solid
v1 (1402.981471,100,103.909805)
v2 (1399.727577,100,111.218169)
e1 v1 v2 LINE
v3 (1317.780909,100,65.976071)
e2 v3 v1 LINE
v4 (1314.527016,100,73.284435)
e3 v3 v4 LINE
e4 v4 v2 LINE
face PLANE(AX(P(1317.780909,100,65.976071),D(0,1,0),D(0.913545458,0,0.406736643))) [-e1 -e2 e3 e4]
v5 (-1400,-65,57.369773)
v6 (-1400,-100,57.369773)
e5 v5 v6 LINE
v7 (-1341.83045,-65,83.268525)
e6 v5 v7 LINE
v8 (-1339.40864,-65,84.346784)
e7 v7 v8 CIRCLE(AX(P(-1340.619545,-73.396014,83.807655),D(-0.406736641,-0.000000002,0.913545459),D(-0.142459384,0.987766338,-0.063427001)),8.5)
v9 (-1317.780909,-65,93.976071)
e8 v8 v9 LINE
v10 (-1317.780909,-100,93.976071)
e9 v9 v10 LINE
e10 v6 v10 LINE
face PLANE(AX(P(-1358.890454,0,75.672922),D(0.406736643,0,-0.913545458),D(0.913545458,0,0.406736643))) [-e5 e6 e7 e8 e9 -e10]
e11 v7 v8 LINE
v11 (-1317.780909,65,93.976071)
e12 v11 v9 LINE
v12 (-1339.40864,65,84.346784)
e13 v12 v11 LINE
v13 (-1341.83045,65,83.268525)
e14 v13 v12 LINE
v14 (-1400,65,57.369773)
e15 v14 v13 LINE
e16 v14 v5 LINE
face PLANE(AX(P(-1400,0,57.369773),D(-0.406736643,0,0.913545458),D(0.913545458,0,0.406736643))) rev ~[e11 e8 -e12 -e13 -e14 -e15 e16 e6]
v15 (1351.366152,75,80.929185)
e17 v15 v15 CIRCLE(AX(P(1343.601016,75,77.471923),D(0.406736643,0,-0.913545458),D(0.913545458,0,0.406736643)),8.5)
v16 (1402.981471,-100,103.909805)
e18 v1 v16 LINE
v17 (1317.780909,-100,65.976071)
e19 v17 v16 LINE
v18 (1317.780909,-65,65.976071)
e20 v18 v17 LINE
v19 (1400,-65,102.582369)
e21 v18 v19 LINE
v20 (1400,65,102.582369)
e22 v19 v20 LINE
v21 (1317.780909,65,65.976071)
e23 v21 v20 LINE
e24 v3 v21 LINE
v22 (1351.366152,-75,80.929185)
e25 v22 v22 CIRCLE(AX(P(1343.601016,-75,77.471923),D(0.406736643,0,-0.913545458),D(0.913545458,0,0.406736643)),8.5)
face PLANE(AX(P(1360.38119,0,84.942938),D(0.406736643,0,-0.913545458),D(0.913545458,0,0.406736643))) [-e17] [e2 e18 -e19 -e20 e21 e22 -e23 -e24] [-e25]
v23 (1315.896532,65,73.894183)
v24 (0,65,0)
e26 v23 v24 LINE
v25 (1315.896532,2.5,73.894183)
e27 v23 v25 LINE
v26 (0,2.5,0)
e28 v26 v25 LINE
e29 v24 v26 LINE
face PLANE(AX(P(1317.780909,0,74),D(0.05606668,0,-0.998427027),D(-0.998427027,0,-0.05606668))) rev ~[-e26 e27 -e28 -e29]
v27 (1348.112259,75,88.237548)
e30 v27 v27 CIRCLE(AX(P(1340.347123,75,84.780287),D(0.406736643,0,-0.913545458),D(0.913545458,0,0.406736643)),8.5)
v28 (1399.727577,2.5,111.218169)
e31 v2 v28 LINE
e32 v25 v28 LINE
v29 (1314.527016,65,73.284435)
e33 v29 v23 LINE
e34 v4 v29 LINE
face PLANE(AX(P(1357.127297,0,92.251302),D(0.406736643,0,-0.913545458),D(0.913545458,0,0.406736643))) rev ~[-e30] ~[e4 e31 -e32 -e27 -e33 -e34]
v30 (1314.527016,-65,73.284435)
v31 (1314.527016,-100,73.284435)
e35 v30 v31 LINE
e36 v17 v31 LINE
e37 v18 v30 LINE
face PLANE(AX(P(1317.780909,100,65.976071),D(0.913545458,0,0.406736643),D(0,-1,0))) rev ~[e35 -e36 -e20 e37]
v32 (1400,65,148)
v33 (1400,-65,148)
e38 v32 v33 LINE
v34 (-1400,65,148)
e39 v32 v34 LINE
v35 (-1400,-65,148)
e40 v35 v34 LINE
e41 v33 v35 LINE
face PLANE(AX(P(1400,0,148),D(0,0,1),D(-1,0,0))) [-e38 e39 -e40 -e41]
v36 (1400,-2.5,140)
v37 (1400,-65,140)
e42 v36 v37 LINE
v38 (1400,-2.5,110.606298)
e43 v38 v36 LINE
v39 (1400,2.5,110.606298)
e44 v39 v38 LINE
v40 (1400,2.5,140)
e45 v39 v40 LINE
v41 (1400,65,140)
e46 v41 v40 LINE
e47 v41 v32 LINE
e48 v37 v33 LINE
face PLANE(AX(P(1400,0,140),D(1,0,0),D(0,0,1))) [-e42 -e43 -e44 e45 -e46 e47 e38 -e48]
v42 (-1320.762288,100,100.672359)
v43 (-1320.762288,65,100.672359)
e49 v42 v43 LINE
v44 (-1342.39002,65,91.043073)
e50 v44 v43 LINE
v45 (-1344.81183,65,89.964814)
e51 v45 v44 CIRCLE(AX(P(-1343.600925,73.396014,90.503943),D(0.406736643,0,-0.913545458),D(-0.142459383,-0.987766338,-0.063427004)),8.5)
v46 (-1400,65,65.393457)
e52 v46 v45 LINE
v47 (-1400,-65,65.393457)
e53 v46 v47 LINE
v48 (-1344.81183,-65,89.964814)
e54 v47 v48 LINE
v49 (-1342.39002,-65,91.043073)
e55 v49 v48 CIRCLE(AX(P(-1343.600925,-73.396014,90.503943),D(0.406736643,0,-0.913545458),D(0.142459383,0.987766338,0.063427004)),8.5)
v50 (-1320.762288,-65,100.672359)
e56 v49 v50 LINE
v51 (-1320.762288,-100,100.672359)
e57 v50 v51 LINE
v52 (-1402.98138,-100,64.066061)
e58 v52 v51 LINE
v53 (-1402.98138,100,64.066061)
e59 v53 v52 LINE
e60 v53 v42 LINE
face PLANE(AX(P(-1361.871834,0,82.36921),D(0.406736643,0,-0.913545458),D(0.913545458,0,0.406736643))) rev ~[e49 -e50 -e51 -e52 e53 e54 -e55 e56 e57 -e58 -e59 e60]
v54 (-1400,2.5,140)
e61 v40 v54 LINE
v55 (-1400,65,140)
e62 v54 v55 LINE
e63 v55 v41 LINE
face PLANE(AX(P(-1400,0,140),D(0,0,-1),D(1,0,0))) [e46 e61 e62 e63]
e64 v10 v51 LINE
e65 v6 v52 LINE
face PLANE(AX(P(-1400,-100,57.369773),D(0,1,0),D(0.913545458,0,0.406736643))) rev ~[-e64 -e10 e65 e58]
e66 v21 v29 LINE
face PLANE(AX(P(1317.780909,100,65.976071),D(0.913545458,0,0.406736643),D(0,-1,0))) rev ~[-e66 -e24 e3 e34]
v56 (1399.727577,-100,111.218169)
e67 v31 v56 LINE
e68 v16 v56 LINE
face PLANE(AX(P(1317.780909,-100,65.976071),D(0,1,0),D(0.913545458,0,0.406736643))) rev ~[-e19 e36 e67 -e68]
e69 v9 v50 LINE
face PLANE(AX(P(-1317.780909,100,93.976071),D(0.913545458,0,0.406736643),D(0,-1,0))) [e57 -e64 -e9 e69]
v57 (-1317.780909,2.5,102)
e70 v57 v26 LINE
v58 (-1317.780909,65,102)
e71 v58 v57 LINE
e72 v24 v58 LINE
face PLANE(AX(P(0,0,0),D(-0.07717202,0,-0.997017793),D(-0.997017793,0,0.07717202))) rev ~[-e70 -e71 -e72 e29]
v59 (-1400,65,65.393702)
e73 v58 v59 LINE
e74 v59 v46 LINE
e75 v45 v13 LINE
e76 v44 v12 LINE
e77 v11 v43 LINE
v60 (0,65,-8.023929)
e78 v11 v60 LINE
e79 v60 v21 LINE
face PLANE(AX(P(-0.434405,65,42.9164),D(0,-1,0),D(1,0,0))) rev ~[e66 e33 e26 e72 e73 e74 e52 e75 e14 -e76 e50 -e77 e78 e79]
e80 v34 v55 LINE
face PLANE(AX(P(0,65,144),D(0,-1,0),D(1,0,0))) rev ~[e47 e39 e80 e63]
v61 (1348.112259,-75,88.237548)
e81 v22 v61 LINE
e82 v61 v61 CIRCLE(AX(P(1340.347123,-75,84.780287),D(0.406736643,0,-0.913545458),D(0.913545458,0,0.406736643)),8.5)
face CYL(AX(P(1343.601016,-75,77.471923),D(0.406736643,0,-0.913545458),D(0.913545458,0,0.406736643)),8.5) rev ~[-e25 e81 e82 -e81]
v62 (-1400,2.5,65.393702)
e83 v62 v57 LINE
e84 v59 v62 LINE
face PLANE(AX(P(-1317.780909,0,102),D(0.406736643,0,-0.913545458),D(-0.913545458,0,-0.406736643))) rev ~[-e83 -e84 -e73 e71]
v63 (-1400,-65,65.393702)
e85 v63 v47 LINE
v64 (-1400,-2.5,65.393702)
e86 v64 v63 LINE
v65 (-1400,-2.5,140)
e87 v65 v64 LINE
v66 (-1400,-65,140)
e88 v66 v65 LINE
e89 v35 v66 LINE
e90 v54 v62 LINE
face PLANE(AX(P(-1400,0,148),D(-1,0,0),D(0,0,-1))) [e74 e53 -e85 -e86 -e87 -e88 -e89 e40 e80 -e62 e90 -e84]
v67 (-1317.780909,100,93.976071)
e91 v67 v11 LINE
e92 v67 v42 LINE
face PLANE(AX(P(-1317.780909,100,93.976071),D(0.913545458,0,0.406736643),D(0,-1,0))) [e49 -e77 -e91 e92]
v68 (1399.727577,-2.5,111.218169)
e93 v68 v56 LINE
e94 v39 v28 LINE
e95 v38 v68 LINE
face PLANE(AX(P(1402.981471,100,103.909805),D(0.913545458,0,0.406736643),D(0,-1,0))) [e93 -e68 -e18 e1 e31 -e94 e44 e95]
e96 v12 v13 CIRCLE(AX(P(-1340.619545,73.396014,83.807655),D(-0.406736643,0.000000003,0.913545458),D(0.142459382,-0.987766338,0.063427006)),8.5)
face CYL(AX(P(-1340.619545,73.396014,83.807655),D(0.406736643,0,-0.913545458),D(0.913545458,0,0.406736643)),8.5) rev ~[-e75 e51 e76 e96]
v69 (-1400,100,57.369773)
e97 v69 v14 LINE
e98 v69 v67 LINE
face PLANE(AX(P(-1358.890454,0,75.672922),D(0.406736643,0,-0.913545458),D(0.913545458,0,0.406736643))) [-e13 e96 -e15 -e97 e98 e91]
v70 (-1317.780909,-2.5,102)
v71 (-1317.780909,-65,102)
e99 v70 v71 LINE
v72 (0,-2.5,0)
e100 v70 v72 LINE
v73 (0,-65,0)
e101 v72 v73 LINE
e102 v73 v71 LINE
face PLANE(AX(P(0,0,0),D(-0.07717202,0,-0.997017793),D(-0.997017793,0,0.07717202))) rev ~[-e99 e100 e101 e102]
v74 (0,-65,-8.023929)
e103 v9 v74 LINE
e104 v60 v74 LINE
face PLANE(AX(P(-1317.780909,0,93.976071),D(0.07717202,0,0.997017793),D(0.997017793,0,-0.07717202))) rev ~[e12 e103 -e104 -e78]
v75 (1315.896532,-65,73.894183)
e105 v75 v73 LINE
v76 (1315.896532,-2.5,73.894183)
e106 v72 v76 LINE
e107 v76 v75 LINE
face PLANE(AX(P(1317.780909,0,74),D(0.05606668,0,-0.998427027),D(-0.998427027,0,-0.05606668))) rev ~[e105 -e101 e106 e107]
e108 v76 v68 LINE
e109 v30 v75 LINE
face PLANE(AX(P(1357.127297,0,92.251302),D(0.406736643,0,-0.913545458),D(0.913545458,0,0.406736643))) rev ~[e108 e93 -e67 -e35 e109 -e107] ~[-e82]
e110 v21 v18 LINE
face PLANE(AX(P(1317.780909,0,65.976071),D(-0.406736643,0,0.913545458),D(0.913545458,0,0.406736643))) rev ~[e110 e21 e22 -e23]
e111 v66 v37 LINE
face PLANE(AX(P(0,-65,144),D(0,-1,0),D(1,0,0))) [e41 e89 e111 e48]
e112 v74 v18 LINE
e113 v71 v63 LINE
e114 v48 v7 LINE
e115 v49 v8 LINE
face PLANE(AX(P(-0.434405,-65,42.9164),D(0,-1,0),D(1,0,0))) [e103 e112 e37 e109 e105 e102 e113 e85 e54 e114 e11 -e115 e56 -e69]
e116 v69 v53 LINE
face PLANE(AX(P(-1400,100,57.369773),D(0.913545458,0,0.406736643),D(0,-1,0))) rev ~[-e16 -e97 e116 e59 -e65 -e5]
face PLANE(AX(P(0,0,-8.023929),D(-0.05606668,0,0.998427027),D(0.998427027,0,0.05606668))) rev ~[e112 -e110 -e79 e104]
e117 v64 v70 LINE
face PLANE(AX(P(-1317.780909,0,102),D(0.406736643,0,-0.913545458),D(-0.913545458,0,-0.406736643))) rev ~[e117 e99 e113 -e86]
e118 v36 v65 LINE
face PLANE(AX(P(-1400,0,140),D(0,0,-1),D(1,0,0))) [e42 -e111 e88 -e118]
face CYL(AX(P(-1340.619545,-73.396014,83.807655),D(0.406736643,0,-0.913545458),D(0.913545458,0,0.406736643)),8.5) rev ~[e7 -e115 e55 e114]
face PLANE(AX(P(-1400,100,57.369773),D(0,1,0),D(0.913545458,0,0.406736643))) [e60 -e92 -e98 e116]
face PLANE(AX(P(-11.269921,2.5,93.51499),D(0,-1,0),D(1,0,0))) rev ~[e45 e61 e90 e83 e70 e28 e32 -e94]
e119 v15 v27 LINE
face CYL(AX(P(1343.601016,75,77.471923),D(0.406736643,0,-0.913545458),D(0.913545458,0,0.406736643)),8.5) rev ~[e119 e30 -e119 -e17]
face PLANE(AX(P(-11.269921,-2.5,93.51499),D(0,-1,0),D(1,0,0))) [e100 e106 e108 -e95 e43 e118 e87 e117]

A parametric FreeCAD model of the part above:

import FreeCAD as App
import Part
import Sketcher

V = App.Vector
Q = App.Units.Quantity

doc = App.newDocument("Part")
body = doc.addObject("PartDesign::Body", "Body")

sketch1 = doc.addObject("Sketcher::SketchObject", "Sketch")
body.addObject(sketch1)
sketch1.AttachmentSupport = (doc.XZ_Plane, [""])
sketch1.MapMode = "FlatFace"
sketch1.addGeometry(Part.LineSegment(V(1400, 140, 0), V(-1400, 140, 0)), False)
sketch1.addGeometry(Part.LineSegment(V(-1400, 140, 0), V(-1400, 65, 0)), False)
sketch1.addGeometry(Part.LineSegment(V(-1400, 65, 0), V(-1318, 102, 0)), False)
sketch1.addGeometry(Part.LineSegment(V(-1318, 102, 0), V(0, 0, 0)), False)
sketch1.addGeometry(Part.LineSegment(V(0, 0, 0), V(1318, 74, 0)), False)
sketch1.addGeometry(Part.LineSegment(V(1318, 74, 0), V(1400, 111, 0)), False)
sketch1.addGeometry(Part.LineSegment(V(1400, 111, 0), V(1400, 140, 0)), False)
sketch1.addConstraint(Sketcher.Constraint("Coincident", 0, 2, 1, 1))
sketch1.addConstraint(Sketcher.Constraint("Coincident", 1, 2, 2, 1))
sketch1.addConstraint(Sketcher.Constraint("Coincident", 2, 2, 3, 1))
sketch1.addConstraint(Sketcher.Constraint("Coincident", 3, 2, 4, 1))
sketch1.addConstraint(Sketcher.Constraint("Coincident", 4, 2, 5, 1))
sketch1.addConstraint(Sketcher.Constraint("Coincident", 5, 2, 6, 1))
sketch1.addConstraint(Sketcher.Constraint("Coincident", 6, 2, 0, 1))
sketch1.addConstraint(Sketcher.Constraint("Horizontal", 0))
sketch1.addConstraint(Sketcher.Constraint("Vertical", 1))
sketch1.addConstraint(Sketcher.Constraint("Vertical", 6))
sketch1.addConstraint(Sketcher.Constraint("Coincident", 3, 2, -1, 1))
sketch1.addConstraint(Sketcher.Constraint("Parallel", 2, 5))
sketch1.addConstraint(Sketcher.Constraint("Equal", 2, 5))
sketch1.addConstraint(Sketcher.Constraint("DistanceX", 0, 2, 0, 1, 2800.0))
sketch1.addConstraint(Sketcher.Constraint("Angle", 2, Q("24 deg")))
sketch1.addConstraint(Sketcher.Constraint("Distance", 2, 90.0))
sketch1.addConstraint(Sketcher.Constraint("DistanceX", 0, 2, -1, 1, 1400.0))
sketch1.addConstraint(Sketcher.Constraint("DistanceY", -1, 1, 0, 2, 140.0))
sketch1.addConstraint(Sketcher.Constraint("DistanceY", -1, 1, 2, 2, 102.0))
sketch1.addConstraint(Sketcher.Constraint("DistanceY", -1, 1, 4, 2, 74.0))
pad1 = doc.addObject("PartDesign::Pad", "Pad")
body.addObject(pad1)
pad1.Profile = sketch1
pad1.Length = 5
pad1.Midplane = True

sketch2 = doc.addObject("Sketcher::SketchObject", "Sketch001")
body.addObject(sketch2)
sketch2.AttachmentSupport = (doc.XZ_Plane, [""])
sketch2.MapMode = "FlatFace"
sketch2.addGeometry(Part.LineSegment(V(1318, 74, 0), V(0, 0, 0)), False)
sketch2.addGeometry(Part.LineSegment(V(0, 0, 0), V(-1318, 102, 0)), False)
sketch2.addGeometry(Part.LineSegment(V(-1318, 102, 0), V(-1400, 65, 0)), False)
sketch2.addGeometry(Part.LineSegment(V(-1400, 65, 0), V(-1400, 57, 0)), False)
sketch2.addGeometry(Part.LineSegment(V(-1400, 57, 0), V(-1318, 94, 0)), False)
sketch2.addGeometry(Part.LineSegment(V(-1318, 94, 0), V(0, -8, 0)), False)
sketch2.addGeometry(Part.LineSegment(V(0, -8, 0), V(1318, 66, 0)), False)
sketch2.addGeometry(Part.LineSegment(V(1318, 66, 0), V(1400, 103, 0)), False)
sketch2.addGeometry(Part.LineSegment(V(1400, 103, 0), V(1400, 111, 0)), False)
sketch2.addGeometry(Part.LineSegment(V(1400, 111, 0), V(1318, 74, 0)), False)
sketch2.addGeometry(Part.LineSegment(V(-1400, 140, 0), V(1400, 140, 0)), False)
sketch2.addGeometry(Part.LineSegment(V(1400, 140, 0), V(1400, 148, 0)), False)
sketch2.addGeometry(Part.LineSegment(V(1400, 148, 0), V(-1400, 148, 0)), False)
sketch2.addGeometry(Part.LineSegment(V(-1400, 148, 0), V(-1400, 140, 0)), False)
sketch2.addConstraint(Sketcher.Constraint("Coincident", 0, 2, 1, 1))
sketch2.addConstraint(Sketcher.Constraint("Coincident", 1, 2, 2, 1))
sketch2.addConstraint(Sketcher.Constraint("Coincident", 2, 2, 3, 1))
sketch2.addConstraint(Sketcher.Constraint("Coincident", 3, 2, 4, 1))
sketch2.addConstraint(Sketcher.Constraint("Coincident", 4, 2, 5, 1))
sketch2.addConstraint(Sketcher.Constraint("Coincident", 5, 2, 6, 1))
sketch2.addConstraint(Sketcher.Constraint("Coincident", 6, 2, 7, 1))
sketch2.addConstraint(Sketcher.Constraint("Coincident", 7, 2, 8, 1))
sketch2.addConstraint(Sketcher.Constraint("Coincident", 8, 2, 9, 1))
sketch2.addConstraint(Sketcher.Constraint("Coincident", 9, 2, 0, 1))
sketch2.addConstraint(Sketcher.Constraint("Coincident", 10, 2, 11, 1))
sketch2.addConstraint(Sketcher.Constraint("Coincident", 11, 2, 12, 1))
sketch2.addConstraint(Sketcher.Constraint("Coincident", 12, 2, 13, 1))
sketch2.addConstraint(Sketcher.Constraint("Coincident", 13, 2, 10, 1))
sketch2.addConstraint(Sketcher.Constraint("Vertical", 3))
sketch2.addConstraint(Sketcher.Constraint("Vertical", 8))
sketch2.addConstraint(Sketcher.Constraint("Horizontal", 10))
sketch2.addConstraint(Sketcher.Constraint("Vertical", 11))
sketch2.addConstraint(Sketcher.Constraint("Horizontal", 12))
sketch2.addConstraint(Sketcher.Constraint("Vertical", 13))
sketch2.addConstraint(Sketcher.Constraint("Coincident", 0, 2, -1, 1))
sketch2.addConstraint(Sketcher.Constraint("PointOnObject", 5, 2, -2))
sketch2.addConstraint(Sketcher.Constraint("Parallel", 2, 4))
sketch2.addConstraint(Sketcher.Constraint("Parallel", 1, 5))
sketch2.addConstraint(Sketcher.Constraint("Parallel", 0, 6))
sketch2.addConstraint(Sketcher.Constraint("Parallel", 4, 7))
sketch2.addConstraint(Sketcher.Constraint("Parallel", 7, 9))
sketch2.addConstraint(Sketcher.Constraint("Vertical", 1, 2, 4, 2))
sketch2.addConstraint(Sketcher.Constraint("Vertical", 6, 2, 9, 2))
sketch2.addConstraint(Sketcher.Constraint("Vertical", 8, 2, 10, 2))
sketch2.addConstraint(Sketcher.Constraint("Vertical", 3, 2, 12, 2))
sketch2.addConstraint(Sketcher.Constraint("Equal", 4, 7))
sketch2.addConstraint(Sketcher.Constraint("DistanceX", 10, 1, 10, 2, 2800.0))
sketch2.addConstraint(Sketcher.Constraint("DistanceY", 11, 1, 11, 2, 8.0))
sketch2.addConstraint(Sketcher.Constraint("Angle", 2, Q("-156 deg")))
sketch2.addConstraint(Sketcher.Constraint("Distance", 2, 90.0))
sketch2.addConstraint(Sketcher.Constraint("DistanceY", -1, 1, 1, 2, 102.0))
sketch2.addConstraint(Sketcher.Constraint("DistanceX", 2, 2, -1, 1, 1400.0))
sketch2.addConstraint(Sketcher.Constraint("DistanceY", -1, 1, 9, 2, 74.0))
sketch2.addConstraint(Sketcher.Constraint("DistanceY", -1, 1, 10, 2, 140.0))
sketch2.addConstraint(Sketcher.Constraint("DistanceY", 3, 2, 3, 1, 8.023929))
pad2 = doc.addObject("PartDesign::Pad", "Pad001")
body.addObject(pad2)
pad2.Profile = sketch2
pad2.Length = 130
pad2.Midplane = True

sketch3 = doc.addObject("Sketcher::SketchObject", "Sketch002")
body.addObject(sketch3)
sketch3.Placement = App.Placement(V(193.491797, 0, -434.589692), App.Rotation(V(0.913545458, 0, 0.406736643), V(0, -1.000000001, 0), V(0.406736643, 0, -0.913545458), "ZXY"))
sketch3.addGeometry(Part.LineSegment(V(1231, 100, 0), V(1231, -100, 0)), False)
sketch3.addGeometry(Part.LineSegment(V(1231, -100, 0), V(1324, -100, 0)), False)
sketch3.addGeometry(Part.LineSegment(V(1324, -100, 0), V(1324, 100, 0)), False)
sketch3.addGeometry(Part.LineSegment(V(1324, 100, 0), V(1231, 100, 0)), False)
sketch3.addGeometry(Part.Circle(V(1259, -75, 0), V(0, 0, 1), 8), False)
sketch3.addGeometry(Part.Circle(V(1259, 75, 0), V(0, 0, 1), 8), False)
sketch3.addConstraint(Sketcher.Constraint("Coincident", 0, 2, 1, 1))
sketch3.addConstraint(Sketcher.Constraint("Coincident", 1, 2, 2, 1))
sketch3.addConstraint(Sketcher.Constraint("Coincident", 2, 2, 3, 1))
sketch3.addConstraint(Sketcher.Constraint("Coincident", 3, 2, 0, 1))
sketch3.addConstraint(Sketcher.Constraint("Vertical", 0))
sketch3.addConstraint(Sketcher.Constraint("Horizontal", 1))
sketch3.addConstraint(Sketcher.Constraint("Vertical", 2))
sketch3.addConstraint(Sketcher.Constraint("Horizontal", 3))
sketch3.addConstraint(Sketcher.Constraint("Equal", 4, 5))
sketch3.addConstraint(Sketcher.Constraint("Symmetric", 4, 3, 5, 3, -1))
sketch3.addConstraint(Sketcher.Constraint("Diameter", 4, 17.0))
sketch3.addConstraint(Sketcher.Constraint("DistanceY", 0, 2, 0, 1, 200.0))
sketch3.addConstraint(Sketcher.Constraint("DistanceY", 4, 3, -1, 1, 75.0))
sketch3.addConstraint(Sketcher.Constraint("DistanceY", 0, 2, -1, 1, 100.0))
sketch3.addConstraint(Sketcher.Constraint("DistanceX", 4, 3, 1, 2, 65.0))
sketch3.addConstraint(Sketcher.Constraint("DistanceX", 1, 1, 1, 2, 93.263626))
sketch3.addConstraint(Sketcher.Constraint("DistanceX", -1, 1, 0, 2, 1230.68765))
pad3 = doc.addObject("PartDesign::Pad", "Pad002")
body.addObject(pad3)
pad3.Profile = sketch3
pad3.Length = 8
pad3.Reversed = True

sketch4 = doc.addObject("Sketcher::SketchObject", "Sketch003")
body.addObject(sketch4)
sketch4.Placement = App.Placement(V(-252.925601, 0, 568.0802), App.Rotation(V(0.913545458, 0, 0.406736643), V(0, -1.000000001, 0), V(0.406736643, 0, -0.913545458), "ZXY"))
sketch4.addGeometry(Part.LineSegment(V(-1256, 100, 0), V(-1256, -100, 0)), False)
sketch4.addGeometry(Part.LineSegment(V(-1256, -100, 0), V(-1166, -100, 0)), False)
sketch4.addGeometry(Part.LineSegment(V(-1166, -100, 0), V(-1166, 100, 0)), False)
sketch4.addGeometry(Part.LineSegment(V(-1166, 100, 0), V(-1256, 100, 0)), False)
sketch4.addGeometry(Part.Circle(V(-1191, -73, 0), V(0, 0, 1), 8), False)
sketch4.addGeometry(Part.Circle(V(-1191, 73, 0), V(0, 0, 1), 8), False)
sketch4.addConstraint(Sketcher.Constraint("Coincident", 0, 2, 1, 1))
sketch4.addConstraint(Sketcher.Constraint("Coincident", 1, 2, 2, 1))
sketch4.addConstraint(Sketcher.Constraint("Coincident", 2, 2, 3, 1))
sketch4.addConstraint(Sketcher.Constraint("Coincident", 3, 2, 0, 1))
sketch4.addConstraint(Sketcher.Constraint("Vertical", 0))
sketch4.addConstraint(Sketcher.Constraint("Horizontal", 1))
sketch4.addConstraint(Sketcher.Constraint("Vertical", 2))
sketch4.addConstraint(Sketcher.Constraint("Horizontal", 3))
sketch4.addConstraint(Sketcher.Constraint("Equal", 4, 5))
sketch4.addConstraint(Sketcher.Constraint("Symmetric", 4, 3, 5, 3, -1))
sketch4.addConstraint(Sketcher.Constraint("Diameter", 4, 17.0))
sketch4.addConstraint(Sketcher.Constraint("DistanceX", 1, 1, 1, 2, 90.0))
sketch4.addConstraint(Sketcher.Constraint("DistanceY", 0, 2, 0, 1, 200.0))
sketch4.addConstraint(Sketcher.Constraint("DistanceY", 0, 2, -1, 1, 100.0))
sketch4.addConstraint(Sketcher.Constraint("DistanceX", 0, 2, 4, 3, 65.0))
sketch4.addConstraint(Sketcher.Constraint("DistanceX", 4, 3, -1, 1, 1190.629252))
sketch4.addConstraint(Sketcher.Constraint("DistanceY", 4, 3, -1, 1, 73.396014))
pad4 = doc.addObject("PartDesign::Pad", "Pad003")
body.addObject(pad4)
pad4.Profile = sketch4
pad4.Length = 7.33
pad4.Reversed = True

doc.recompute()
